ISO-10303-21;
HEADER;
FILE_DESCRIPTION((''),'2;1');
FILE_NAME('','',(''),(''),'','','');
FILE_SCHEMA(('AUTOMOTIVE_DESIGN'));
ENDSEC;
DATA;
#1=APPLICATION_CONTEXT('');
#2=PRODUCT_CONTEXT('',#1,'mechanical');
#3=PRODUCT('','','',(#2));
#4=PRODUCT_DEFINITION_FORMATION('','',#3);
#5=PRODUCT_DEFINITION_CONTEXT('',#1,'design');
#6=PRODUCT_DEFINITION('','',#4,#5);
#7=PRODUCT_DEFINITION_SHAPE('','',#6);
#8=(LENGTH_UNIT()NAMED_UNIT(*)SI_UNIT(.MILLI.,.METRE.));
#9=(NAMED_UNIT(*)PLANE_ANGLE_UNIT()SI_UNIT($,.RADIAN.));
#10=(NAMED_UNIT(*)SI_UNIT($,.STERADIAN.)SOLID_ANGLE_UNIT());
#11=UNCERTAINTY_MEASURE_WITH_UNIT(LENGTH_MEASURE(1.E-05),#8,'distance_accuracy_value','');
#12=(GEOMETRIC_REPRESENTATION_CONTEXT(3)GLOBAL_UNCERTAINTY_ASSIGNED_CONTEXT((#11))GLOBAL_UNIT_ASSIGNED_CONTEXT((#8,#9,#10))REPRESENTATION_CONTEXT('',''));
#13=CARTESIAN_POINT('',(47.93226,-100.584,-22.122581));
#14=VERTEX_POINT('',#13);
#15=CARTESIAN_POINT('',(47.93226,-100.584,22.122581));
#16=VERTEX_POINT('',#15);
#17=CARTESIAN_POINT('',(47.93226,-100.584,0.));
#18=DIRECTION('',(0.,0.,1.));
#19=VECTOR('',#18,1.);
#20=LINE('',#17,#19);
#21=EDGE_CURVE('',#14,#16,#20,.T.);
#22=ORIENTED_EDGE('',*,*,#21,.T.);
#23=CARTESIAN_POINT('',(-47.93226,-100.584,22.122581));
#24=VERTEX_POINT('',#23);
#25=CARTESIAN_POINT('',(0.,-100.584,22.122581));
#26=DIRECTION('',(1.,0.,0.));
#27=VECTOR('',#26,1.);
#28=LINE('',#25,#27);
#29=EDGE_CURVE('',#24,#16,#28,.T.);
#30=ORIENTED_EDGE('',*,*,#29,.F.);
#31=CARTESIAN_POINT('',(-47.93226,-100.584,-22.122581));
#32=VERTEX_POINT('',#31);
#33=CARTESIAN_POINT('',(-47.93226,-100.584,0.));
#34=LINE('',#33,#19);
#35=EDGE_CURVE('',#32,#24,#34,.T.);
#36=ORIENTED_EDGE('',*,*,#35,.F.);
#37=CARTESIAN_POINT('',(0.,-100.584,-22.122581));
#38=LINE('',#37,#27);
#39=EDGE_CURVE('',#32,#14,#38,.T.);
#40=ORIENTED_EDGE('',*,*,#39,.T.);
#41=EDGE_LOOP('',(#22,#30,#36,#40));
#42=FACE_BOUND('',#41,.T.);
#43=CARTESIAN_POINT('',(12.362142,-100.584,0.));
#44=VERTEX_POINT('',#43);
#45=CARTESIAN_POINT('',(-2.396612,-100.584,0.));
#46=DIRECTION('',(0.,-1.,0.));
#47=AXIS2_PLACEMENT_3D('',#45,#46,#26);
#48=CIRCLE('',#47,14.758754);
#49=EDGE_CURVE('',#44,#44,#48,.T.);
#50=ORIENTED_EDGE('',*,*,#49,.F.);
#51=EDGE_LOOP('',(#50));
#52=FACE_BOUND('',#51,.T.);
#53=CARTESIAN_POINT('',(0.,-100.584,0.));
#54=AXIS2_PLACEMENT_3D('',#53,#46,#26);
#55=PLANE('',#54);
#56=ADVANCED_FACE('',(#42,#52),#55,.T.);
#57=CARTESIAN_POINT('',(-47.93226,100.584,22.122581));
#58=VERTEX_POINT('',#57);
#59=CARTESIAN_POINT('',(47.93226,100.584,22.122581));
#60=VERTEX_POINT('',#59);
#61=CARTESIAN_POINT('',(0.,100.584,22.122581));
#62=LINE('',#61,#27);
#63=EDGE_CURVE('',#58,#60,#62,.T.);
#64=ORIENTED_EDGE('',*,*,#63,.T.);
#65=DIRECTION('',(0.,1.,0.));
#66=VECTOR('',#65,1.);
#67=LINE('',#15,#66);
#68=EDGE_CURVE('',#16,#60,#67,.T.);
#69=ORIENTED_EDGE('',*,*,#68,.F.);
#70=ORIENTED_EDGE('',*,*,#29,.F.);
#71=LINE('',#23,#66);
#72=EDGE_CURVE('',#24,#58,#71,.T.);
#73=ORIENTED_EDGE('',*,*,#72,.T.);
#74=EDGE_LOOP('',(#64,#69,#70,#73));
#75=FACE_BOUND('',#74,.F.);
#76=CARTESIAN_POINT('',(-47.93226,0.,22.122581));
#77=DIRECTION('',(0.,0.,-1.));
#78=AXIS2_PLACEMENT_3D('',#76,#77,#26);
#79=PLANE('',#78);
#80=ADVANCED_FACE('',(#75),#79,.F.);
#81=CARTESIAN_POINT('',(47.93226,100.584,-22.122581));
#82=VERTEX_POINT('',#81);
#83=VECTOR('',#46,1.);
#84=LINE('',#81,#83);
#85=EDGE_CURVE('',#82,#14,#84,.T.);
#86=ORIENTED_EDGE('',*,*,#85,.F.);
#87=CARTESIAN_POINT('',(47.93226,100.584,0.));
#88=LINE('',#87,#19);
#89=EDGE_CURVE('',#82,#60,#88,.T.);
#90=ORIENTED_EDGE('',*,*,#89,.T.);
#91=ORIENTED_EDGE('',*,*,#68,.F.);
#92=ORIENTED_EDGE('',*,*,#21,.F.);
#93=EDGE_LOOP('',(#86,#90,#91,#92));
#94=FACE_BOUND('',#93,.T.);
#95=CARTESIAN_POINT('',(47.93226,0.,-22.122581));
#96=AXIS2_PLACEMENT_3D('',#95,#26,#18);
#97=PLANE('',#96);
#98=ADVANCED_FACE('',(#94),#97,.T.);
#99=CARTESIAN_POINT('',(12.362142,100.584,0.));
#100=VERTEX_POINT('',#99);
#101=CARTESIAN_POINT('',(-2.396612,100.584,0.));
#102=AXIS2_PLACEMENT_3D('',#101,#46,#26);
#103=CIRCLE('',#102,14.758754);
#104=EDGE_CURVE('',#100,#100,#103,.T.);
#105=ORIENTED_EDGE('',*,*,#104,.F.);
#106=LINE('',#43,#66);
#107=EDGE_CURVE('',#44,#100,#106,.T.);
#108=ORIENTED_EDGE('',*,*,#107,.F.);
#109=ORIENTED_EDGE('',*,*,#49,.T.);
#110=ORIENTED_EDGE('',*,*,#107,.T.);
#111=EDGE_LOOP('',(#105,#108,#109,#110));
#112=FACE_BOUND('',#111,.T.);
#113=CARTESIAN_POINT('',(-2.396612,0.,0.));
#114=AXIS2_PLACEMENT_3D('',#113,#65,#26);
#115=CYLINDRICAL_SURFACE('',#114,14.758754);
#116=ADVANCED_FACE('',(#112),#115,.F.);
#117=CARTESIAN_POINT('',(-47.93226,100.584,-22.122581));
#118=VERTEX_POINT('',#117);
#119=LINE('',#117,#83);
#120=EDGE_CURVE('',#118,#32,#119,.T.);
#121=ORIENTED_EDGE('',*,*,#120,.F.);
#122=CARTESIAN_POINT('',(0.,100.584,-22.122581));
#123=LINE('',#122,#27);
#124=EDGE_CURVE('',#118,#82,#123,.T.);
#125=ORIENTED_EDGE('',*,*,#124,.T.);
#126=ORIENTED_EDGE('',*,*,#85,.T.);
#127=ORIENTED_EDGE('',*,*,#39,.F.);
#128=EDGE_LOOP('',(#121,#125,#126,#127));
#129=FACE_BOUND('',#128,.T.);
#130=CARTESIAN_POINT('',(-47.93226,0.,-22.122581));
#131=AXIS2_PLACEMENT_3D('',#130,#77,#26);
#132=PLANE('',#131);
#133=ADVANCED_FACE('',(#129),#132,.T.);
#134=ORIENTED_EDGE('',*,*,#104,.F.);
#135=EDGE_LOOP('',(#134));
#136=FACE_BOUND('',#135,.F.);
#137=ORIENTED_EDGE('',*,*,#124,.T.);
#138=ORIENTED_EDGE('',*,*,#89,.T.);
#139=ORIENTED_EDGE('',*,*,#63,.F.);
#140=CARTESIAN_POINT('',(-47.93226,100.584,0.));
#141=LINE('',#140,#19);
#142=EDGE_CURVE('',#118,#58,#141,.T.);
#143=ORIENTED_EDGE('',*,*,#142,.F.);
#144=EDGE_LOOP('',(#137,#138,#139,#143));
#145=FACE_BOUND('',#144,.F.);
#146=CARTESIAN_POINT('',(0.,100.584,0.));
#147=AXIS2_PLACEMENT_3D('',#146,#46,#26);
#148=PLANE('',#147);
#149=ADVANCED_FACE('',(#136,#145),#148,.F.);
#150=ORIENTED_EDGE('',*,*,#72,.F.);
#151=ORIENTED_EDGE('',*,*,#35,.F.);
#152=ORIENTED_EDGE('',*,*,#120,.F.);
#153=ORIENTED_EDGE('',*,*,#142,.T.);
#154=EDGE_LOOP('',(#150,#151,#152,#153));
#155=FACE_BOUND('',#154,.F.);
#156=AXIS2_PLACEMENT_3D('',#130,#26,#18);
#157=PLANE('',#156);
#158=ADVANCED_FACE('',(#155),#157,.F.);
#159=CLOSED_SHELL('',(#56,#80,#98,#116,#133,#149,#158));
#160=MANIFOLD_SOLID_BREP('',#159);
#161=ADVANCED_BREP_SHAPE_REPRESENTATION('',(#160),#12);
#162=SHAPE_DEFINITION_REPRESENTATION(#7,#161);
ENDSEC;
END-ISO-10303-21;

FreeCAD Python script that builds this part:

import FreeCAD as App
import Part
import Sketcher
from FreeCAD import Vector
Q = App.Units.Quantity

doc = App.newDocument("Part")
body = doc.addObject("PartDesign::Body", "Body")

sketch1 = body.newObject("Sketcher::SketchObject", "Sketch")
sketch1.AttachmentSupport = (doc.getObject("XZ_Plane"), [""])
sketch1.MapMode = "FlatFace"
sketch1.addGeometry([
    Part.LineSegment(Vector(-48, 22, 0), Vector(-48, -22, 0)),
    Part.LineSegment(Vector(-48, -22, 0), Vector(48, -22, 0)),
    Part.LineSegment(Vector(48, -22, 0), Vector(48, 22, 0)),
    Part.LineSegment(Vector(48, 22, 0), Vector(-48, 22, 0)),
    Part.Circle(Vector(-2, 0, 0), Vector(0, 0, 1), 15),
], False)
sketch1.addConstraint([
    Sketcher.Constraint("Coincident", 0, 2, 1, 1),
    Sketcher.Constraint("Coincident", 1, 2, 2, 1),
    Sketcher.Constraint("Coincident", 2, 2, 3, 1),
    Sketcher.Constraint("Coincident", 3, 2, 0, 1),
    Sketcher.Constraint("Vertical", 0),
    Sketcher.Constraint("Horizontal", 1),
    Sketcher.Constraint("Vertical", 2),
    Sketcher.Constraint("Horizontal", 3),
    Sketcher.Constraint("Symmetric", 0, 2, 2, 2, -1, 1),
    Sketcher.Constraint("PointOnObject", 4, 3, -1),
    Sketcher.Constraint("Diameter", 4, Q("29.517508 mm")),
    Sketcher.Constraint("DistanceX", 1, 1, 1, 2, Q("95.86452 mm")),
    Sketcher.Constraint("DistanceY", 0, 2, 0, 1, Q("44.245162 mm")),
    Sketcher.Constraint("DistanceX", 0, 2, 4, 3, Q("45.535648 mm")),
])
pad1 = body.newObject("PartDesign::Pad", "Pad")
pad1.Profile = sketch1
pad1.Length = Q("7.92 in")
pad1.Midplane = True

doc.recompute()
